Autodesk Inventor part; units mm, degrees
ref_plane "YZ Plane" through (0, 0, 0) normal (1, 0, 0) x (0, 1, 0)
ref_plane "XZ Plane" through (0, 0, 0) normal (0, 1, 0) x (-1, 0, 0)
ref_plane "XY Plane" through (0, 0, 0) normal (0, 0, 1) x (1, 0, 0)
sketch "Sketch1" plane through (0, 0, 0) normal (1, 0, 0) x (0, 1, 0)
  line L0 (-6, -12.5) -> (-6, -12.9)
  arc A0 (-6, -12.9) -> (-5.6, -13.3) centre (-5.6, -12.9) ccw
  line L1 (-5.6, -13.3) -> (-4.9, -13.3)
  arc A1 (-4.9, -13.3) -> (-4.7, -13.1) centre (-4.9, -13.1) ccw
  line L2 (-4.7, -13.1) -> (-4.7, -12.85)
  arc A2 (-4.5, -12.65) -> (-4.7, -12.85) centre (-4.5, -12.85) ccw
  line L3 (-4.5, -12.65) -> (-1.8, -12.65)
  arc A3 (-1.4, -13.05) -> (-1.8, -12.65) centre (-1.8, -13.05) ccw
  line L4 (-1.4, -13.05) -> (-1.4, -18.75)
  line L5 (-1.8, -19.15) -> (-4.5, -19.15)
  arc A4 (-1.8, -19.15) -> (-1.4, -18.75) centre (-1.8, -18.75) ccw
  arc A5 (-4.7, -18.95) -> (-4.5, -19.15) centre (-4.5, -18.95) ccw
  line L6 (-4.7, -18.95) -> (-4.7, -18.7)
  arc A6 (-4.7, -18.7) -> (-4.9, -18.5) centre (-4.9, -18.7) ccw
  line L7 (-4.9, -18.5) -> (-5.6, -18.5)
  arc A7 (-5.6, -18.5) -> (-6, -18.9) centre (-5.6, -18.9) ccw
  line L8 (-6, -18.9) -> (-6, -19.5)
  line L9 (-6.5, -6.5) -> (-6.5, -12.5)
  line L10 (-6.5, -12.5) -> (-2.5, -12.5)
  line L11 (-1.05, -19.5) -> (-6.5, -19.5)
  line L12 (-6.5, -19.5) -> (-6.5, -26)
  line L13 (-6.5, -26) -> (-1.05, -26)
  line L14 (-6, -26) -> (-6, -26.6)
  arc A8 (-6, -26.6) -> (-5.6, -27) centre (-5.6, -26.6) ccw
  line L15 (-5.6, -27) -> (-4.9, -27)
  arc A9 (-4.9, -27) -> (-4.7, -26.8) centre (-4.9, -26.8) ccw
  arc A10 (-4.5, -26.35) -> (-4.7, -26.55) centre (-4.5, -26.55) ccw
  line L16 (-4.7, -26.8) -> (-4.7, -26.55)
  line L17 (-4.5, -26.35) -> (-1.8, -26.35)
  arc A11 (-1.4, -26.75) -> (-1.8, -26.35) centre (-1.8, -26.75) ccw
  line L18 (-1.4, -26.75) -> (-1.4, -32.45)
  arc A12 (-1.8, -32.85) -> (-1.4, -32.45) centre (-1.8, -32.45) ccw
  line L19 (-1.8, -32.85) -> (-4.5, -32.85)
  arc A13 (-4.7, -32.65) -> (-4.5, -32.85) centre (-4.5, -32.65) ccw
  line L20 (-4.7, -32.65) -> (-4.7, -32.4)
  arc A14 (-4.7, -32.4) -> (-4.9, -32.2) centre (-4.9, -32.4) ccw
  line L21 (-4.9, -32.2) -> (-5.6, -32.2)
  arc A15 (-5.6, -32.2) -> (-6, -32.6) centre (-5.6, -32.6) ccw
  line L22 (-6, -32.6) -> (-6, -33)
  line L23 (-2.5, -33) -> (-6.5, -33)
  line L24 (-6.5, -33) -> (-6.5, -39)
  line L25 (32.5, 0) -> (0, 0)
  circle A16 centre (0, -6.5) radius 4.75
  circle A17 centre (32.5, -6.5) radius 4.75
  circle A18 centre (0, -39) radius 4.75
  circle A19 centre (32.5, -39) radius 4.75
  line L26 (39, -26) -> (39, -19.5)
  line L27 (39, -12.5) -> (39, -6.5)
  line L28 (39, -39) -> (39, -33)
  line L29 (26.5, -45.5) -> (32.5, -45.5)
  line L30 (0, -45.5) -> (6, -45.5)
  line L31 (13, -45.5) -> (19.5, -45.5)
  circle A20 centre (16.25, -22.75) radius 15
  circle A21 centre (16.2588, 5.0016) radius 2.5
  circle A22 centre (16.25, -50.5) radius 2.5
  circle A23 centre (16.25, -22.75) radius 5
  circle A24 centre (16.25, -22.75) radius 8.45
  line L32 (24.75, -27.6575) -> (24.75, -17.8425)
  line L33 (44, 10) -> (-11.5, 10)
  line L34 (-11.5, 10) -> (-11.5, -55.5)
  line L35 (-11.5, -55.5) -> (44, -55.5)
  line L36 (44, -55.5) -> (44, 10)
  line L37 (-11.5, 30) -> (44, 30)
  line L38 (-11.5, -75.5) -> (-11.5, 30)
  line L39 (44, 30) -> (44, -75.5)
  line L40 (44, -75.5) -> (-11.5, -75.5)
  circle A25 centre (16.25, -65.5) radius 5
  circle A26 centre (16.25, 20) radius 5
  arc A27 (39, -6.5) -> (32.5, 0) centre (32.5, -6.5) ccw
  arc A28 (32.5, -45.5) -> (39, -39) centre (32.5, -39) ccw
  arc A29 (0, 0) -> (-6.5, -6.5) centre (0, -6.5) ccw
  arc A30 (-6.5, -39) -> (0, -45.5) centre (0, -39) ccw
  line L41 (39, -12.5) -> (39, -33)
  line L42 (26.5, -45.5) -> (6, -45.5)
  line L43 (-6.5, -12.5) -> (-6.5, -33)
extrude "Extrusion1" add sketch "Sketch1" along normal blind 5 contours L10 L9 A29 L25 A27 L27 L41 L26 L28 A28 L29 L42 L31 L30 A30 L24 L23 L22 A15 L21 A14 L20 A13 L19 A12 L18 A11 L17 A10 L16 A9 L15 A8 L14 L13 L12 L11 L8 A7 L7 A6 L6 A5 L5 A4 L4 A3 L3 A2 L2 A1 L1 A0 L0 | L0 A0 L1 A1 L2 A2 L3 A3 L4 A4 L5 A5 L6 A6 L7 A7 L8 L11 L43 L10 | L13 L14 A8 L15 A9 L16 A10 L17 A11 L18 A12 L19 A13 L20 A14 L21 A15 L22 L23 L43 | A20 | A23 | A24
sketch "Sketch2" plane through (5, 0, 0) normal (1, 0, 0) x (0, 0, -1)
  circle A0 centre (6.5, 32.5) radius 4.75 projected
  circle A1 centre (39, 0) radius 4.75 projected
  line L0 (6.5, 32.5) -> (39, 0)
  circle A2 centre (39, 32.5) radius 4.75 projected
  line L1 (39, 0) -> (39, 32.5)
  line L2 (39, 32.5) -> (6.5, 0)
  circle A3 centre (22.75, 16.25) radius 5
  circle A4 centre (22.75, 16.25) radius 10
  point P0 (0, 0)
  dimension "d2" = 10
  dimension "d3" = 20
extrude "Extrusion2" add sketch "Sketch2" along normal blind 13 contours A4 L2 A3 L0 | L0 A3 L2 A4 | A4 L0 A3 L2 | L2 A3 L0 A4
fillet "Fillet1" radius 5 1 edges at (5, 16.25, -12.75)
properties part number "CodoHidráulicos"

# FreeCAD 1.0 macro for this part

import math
import FreeCAD as App
import Part
import Sketcher

V = App.Vector
Q = App.Units.Quantity


def edges_at(feature, points):
    """Names of the edges that pass closest to the given points."""
    edges = feature.Shape.Edges
    near = lambda p: min(range(len(edges)), key=lambda i: edges[i].distToShape(Part.Vertex(*p))[0])
    return sorted({f"Edge{near(p) + 1}" for p in points})

doc = App.newDocument("Part")
body = doc.addObject("PartDesign::Body", "Body")

sketch1 = doc.addObject("Sketcher::SketchObject", "Sketch")
body.addObject(sketch1)
sketch1.AttachmentSupport = (doc.YZ_Plane, [""])
sketch1.MapMode = "FlatFace"
sketch1.addGeometry(Part.LineSegment(V(-6.5, -6.5, 0), V(-6.5, -39, 0)), False)
sketch1.addGeometry(Part.ArcOfCircle(Part.Circle(V(0, -39, 0), V(0, 0, 1), 6.5), math.radians(180), math.radians(270)), False)
sketch1.addGeometry(Part.LineSegment(V(0, -45.5, 0), V(32.5, -45.5, 0)), False)
sketch1.addGeometry(Part.ArcOfCircle(Part.Circle(V(32.5, -39, 0), V(0, 0, 1), 6.5), math.radians(-90), math.radians(0)), False)
sketch1.addGeometry(Part.LineSegment(V(39, -39, 0), V(39, -6.5, 0)), False)
sketch1.addGeometry(Part.ArcOfCircle(Part.Circle(V(32.5, -6.5, 0), V(0, 0, 1), 6.5), math.radians(0), math.radians(90)), False)
sketch1.addGeometry(Part.LineSegment(V(32.5, 0, 0), V(0, 0, 0)), False)
sketch1.addGeometry(Part.ArcOfCircle(Part.Circle(V(0, -6.5, 0), V(0, 0, 1), 6.5), math.radians(90), math.radians(180)), False)
sketch1.addGeometry(Part.Circle(V(0, -39, 0), V(0, 0, 1), 4.75), False)
sketch1.addGeometry(Part.Circle(V(32.5, -39, 0), V(0, 0, 1), 4.75), False)
sketch1.addGeometry(Part.Circle(V(0, -6.5, 0), V(0, 0, 1), 4.75), False)
sketch1.addGeometry(Part.Circle(V(32.5, -6.5, 0), V(0, 0, 1), 4.75), False)
sketch1.addConstraint(Sketcher.Constraint("Tangent", 0, 2, 1, 1))
sketch1.addConstraint(Sketcher.Constraint("Tangent", 1, 2, 2, 1))
sketch1.addConstraint(Sketcher.Constraint("Tangent", 2, 2, 3, 1))
sketch1.addConstraint(Sketcher.Constraint("Tangent", 3, 2, 4, 1))
sketch1.addConstraint(Sketcher.Constraint("Tangent", 4, 2, 5, 1))
sketch1.addConstraint(Sketcher.Constraint("Tangent", 5, 2, 6, 1))
sketch1.addConstraint(Sketcher.Constraint("Tangent", 6, 2, 7, 1))
sketch1.addConstraint(Sketcher.Constraint("Tangent", 7, 2, 0, 1))
sketch1.addConstraint(Sketcher.Constraint("Vertical", 0))
sketch1.addConstraint(Sketcher.Constraint("Horizontal", 2))
sketch1.addConstraint(Sketcher.Constraint("Vertical", 4))
sketch1.addConstraint(Sketcher.Constraint("Horizontal", 6))
sketch1.addConstraint(Sketcher.Constraint("Coincident", 6, 2, -1, 1))
sketch1.addConstraint(Sketcher.Constraint("Coincident", 8, 3, 1, 3))
sketch1.addConstraint(Sketcher.Constraint("Coincident", 9, 3, 3, 3))
sketch1.addConstraint(Sketcher.Constraint("Coincident", 10, 3, 7, 3))
sketch1.addConstraint(Sketcher.Constraint("Coincident", 11, 3, 5, 3))
sketch1.addConstraint(Sketcher.Constraint("Equal", 1, 3))
sketch1.addConstraint(Sketcher.Constraint("Equal", 3, 5))
sketch1.addConstraint(Sketcher.Constraint("Equal", 5, 7))
sketch1.addConstraint(Sketcher.Constraint("Equal", 8, 9))
sketch1.addConstraint(Sketcher.Constraint("Equal", 9, 10))
sketch1.addConstraint(Sketcher.Constraint("Equal", 10, 11))
sketch1.addConstraint(Sketcher.Constraint("Equal", 6, 0))
sketch1.addConstraint(Sketcher.Constraint("Diameter", 8, Q("9.5 mm")))
sketch1.addConstraint(Sketcher.Constraint("Radius", 1, Q("6.5 mm")))
sketch1.addConstraint(Sketcher.Constraint("DistanceX", 2, 1, 2, 2, Q("32.5 mm")))
pad1 = doc.addObject("PartDesign::Pad", "Pad")
body.addObject(pad1)
pad1.Profile = sketch1
pad1.Length = 5

sketch2 = doc.addObject("Sketcher::SketchObject", "Sketch001")
body.addObject(sketch2)
sketch2.AttachmentSupport = (doc.YZ_Plane, [""])
sketch2.MapMode = "FlatFace"
sketch2.AttachmentOffset = App.Placement(V(0, 0, 5), App.Rotation())
sketch2.addGeometry(Part.Circle(V(16.25, -22.75, 0), V(0, 0, 1), 10), False)
sketch2.addGeometry(Part.Circle(V(16.25, -22.75, 0), V(0, 0, 1), 5), False)
sketch2.addConstraint(Sketcher.Constraint("Coincident", 1, 3, 0, 3))
sketch2.addConstraint(Sketcher.Constraint("Diameter", 0, Q("20 mm")))
sketch2.addConstraint(Sketcher.Constraint("Diameter", 1, Q("10 mm")))
sketch2.addConstraint(Sketcher.Constraint("DistanceX", -1, 1, 0, 3, Q("16.25 mm")))
sketch2.addConstraint(Sketcher.Constraint("DistanceY", 0, 3, -1, 1, Q("22.75 mm")))
pad2 = doc.addObject("PartDesign::Pad", "Pad001")
body.addObject(pad2)
pad2.Profile = sketch2
pad2.Length = 13
doc.recompute()

fillet = doc.addObject("PartDesign::Fillet", "Fillet")
body.addObject(fillet)
fillet.Base = (pad2, edges_at(pad2, [(5, 16.25, -12.75)]))
fillet.Radius = 5

doc.recompute()
